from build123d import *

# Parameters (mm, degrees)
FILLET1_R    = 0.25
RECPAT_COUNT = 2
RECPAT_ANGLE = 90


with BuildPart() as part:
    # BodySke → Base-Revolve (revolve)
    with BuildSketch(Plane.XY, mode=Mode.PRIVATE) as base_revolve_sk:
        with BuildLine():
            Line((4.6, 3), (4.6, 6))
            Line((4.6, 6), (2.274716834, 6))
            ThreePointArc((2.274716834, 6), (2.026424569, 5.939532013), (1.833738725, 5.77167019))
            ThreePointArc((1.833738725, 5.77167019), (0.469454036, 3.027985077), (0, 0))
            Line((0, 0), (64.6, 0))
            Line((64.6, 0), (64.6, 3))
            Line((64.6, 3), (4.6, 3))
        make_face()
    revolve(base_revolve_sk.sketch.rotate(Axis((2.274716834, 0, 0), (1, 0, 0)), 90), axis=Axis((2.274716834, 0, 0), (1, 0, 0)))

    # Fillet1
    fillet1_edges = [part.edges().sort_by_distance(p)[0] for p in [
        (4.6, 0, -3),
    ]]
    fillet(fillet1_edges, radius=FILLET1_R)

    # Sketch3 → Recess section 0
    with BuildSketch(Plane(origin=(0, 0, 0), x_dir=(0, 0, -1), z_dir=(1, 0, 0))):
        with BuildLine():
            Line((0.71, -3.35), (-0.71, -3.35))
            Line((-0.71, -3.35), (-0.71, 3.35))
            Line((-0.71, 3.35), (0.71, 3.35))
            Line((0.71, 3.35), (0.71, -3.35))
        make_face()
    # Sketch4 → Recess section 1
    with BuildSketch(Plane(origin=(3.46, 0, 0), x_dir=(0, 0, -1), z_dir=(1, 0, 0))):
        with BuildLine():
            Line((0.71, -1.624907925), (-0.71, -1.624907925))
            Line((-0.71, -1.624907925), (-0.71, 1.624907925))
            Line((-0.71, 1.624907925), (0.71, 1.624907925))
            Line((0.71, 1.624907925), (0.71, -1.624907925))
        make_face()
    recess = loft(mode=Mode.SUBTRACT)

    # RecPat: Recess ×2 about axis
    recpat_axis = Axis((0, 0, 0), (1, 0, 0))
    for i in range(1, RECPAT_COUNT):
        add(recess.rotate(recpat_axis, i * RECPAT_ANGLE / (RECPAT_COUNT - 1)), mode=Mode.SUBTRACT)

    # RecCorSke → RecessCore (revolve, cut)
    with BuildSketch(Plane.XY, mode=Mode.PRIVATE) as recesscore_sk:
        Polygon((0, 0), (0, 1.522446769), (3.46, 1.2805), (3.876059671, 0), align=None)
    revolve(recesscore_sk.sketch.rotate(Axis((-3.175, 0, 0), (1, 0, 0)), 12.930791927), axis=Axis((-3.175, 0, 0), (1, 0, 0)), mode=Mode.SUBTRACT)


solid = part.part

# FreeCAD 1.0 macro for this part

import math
import FreeCAD as App
import Part
import Sketcher
from FreeCAD import Vector
Q = App.Units.Quantity


def edges_at(feature, points):
    """Names of the edges that pass closest to the given points."""
    edges = feature.Shape.Edges
    near = lambda p: min(range(len(edges)), key=lambda i: edges[i].distToShape(Part.Vertex(*p))[0])
    return sorted({f"Edge{near(p) + 1}" for p in points})


def add_polygon(sketch, points):
    """Adds a closed chain of lines whose ends are joined by coincident constraints."""
    first, n = sketch.GeometryCount, len(points)
    for a, b in zip(points, points[1:] + points[:1]):
        sketch.addGeometry(Part.LineSegment(App.Vector(*a, 0), App.Vector(*b, 0)), False)
    for i in range(n):
        sketch.addConstraint(Sketcher.Constraint("Coincident", first + i, 2, first + (i + 1) % n, 1))

doc = App.newDocument("Part")
params = doc.addObject("Spreadsheet::Sheet", "Params")
for row, (alias, value) in enumerate([
    ("sketch1_radius", "10 mm"),
    ("sketch1_width", "60 mm"),
    ("sketch1_height", "3 mm"),
    ("sketch1_radius2", "0.54 mm"),
    ("sketch1_width2", "64.6 mm"),
    ("revolution_angle", "360 deg"),
    ("fillet_radius", "0.25 mm"),
    ("sketch2_width", "6.7 mm"),
    ("sketch2_height", "1.42 mm"),
    ("sketch3_height", "1.42 mm"),
    ("groove_angle", "360 deg"),
], start=1):
    params.set(f"A{row}", alias)
    params.set(f"B{row}", "=" + value)
    params.setAlias(f"B{row}", alias)

body = doc.addObject("PartDesign::Body", "Body")

# Sketch on XY plane
sketch1 = doc.addObject("Sketcher::SketchObject", "Sketch")
body.addObject(sketch1)
sketch1.AttachmentSupport = (doc.XY_Plane, [""])
sketch1.MapMode = "FlatFace"
sketch1.addGeometry([
    Part.LineSegment(Vector(4.6, 3, 0), Vector(4.6, 6, 0)),  # 0
    Part.LineSegment(Vector(4.6, 6, 0), Vector(2.27, 6, 0)),  # 1
    Part.ArcOfCircle(Part.Circle(Vector(2.27, 5.46, 0), Vector(0, 0, 1), 0.54), math.radians(90), math.radians(145)),  # 2
    Part.ArcOfCircle(Part.Circle(Vector(10, 0, 0), Vector(0, 0, 1), 10), math.radians(145), math.radians(180)),  # 3
    Part.LineSegment(Vector(0, 0, 0), Vector(64.6, 0, 0)),  # 4
    Part.LineSegment(Vector(64.6, 0, 0), Vector(64.6, 3, 0)),  # 5
    Part.LineSegment(Vector(64.6, 3, 0), Vector(4.6, 3, 0)),  # 6
], False)
sketch1.addConstraint([
    Sketcher.Constraint("Coincident", 0, 2, 1, 1),
    Sketcher.Constraint("Tangent", 1, 2, 2, 1),
    Sketcher.Constraint("Tangent", 2, 2, 3, 1),
    Sketcher.Constraint("Coincident", 3, 2, 4, 1),
    Sketcher.Constraint("Coincident", 4, 2, 5, 1),
    Sketcher.Constraint("Coincident", 5, 2, 6, 1),
    Sketcher.Constraint("Coincident", 6, 2, 0, 1),
    Sketcher.Constraint("Vertical", 0),
    Sketcher.Constraint("Horizontal", 1),
    Sketcher.Constraint("Horizontal", 4),
    Sketcher.Constraint("Vertical", 5),
    Sketcher.Constraint("Horizontal", 6),
    Sketcher.Constraint("Coincident", 3, 2, -1, 1),
    Sketcher.Constraint("PointOnObject", 3, 3, -1),
    Sketcher.Constraint("Equal", 0, 5),
    Sketcher.Constraint("Radius", 3, 10.0),
    Sketcher.Constraint("DistanceX", 6, 2, 6, 1, 60.0),
    Sketcher.Constraint("DistanceY", 0, 1, 0, 2, 3.0),
    Sketcher.Constraint("Radius", 2, 0.54),
    Sketcher.Constraint("DistanceX", 4, 1, 4, 2, 64.6),
])
sketch1.setExpression("Constraints[15]", "Params.sketch1_radius")
sketch1.setExpression("Constraints[16]", "Params.sketch1_width")
sketch1.setExpression("Constraints[17]", "Params.sketch1_height")
sketch1.setExpression("Constraints[18]", "Params.sketch1_radius2")
sketch1.setExpression("Constraints[19]", "Params.sketch1_width2")
revolution = doc.addObject("PartDesign::Revolution", "Revolution")
body.addObject(revolution)
revolution.Profile = sketch1
revolution.ReferenceAxis = (sketch1, ["H_Axis"])
revolution.setExpression("Angle", "Params.revolution_angle")
doc.recompute()

fillet = doc.addObject("PartDesign::Fillet", "Fillet")
body.addObject(fillet)
fillet.Base = (revolution, edges_at(revolution, [(4.6, 0, -3)]))
fillet.setExpression("Radius", "Params.fillet_radius")

# Sketch on YZ plane
sketch2 = doc.addObject("Sketcher::SketchObject", "Sketch001")
body.addObject(sketch2)
sketch2.AttachmentSupport = (doc.YZ_Plane, [""])
sketch2.MapMode = "FlatFace"
add_polygon(sketch2, [(-3.4, 0.7), (-3.4, -0.7), (3.4, -0.7), (3.4, 0.7)])  # lines 0-3
sketch2.addConstraint([
    Sketcher.Constraint("Vertical", 0),
    Sketcher.Constraint("Horizontal", 1),
    Sketcher.Constraint("Vertical", 2),
    Sketcher.Constraint("Horizontal", 3),
    Sketcher.Constraint("Symmetric", 0, 2, 2, 2, -1, 1),
    Sketcher.Constraint("DistanceX", 1, 1, 1, 2, 6.7),
    Sketcher.Constraint("DistanceY", 0, 2, 0, 1, 1.42),
])
sketch2.setExpression("Constraints[9]", "Params.sketch2_width")
sketch2.setExpression("Constraints[10]", "Params.sketch2_height")

# Sketch on YZ plane
sketch3 = doc.addObject("Sketcher::SketchObject", "Sketch002")
body.addObject(sketch3)
sketch3.AttachmentSupport = (doc.YZ_Plane, [""])
sketch3.MapMode = "FlatFace"
sketch3.AttachmentOffset = App.Placement(Vector(0, 0, 3.46), App.Rotation())
add_polygon(sketch3, [(-1.6, 0.7), (-1.6, -0.7), (1.6, -0.7), (1.6, 0.7)])  # lines 0-3
sketch3.addConstraint([
    Sketcher.Constraint("Vertical", 0),
    Sketcher.Constraint("Horizontal", 1),
    Sketcher.Constraint("Vertical", 2),
    Sketcher.Constraint("Horizontal", 3),
    Sketcher.Constraint("Symmetric", 0, 2, 2, 2, -1, 1),
    Sketcher.Constraint("DistanceY", 0, 2, 0, 1, 1.42),
    Sketcher.Constraint("DistanceX", 1, 1, 1, 2, 3.249816),
])
sketch3.setExpression("Constraints[9]", "Params.sketch3_height")

subtractiveloft = doc.addObject("PartDesign::SubtractiveLoft", "SubtractiveLoft")
body.addObject(subtractiveloft)
subtractiveloft.Profile = sketch2
subtractiveloft.Sections = [sketch3]
doc.recompute()

polarpattern = doc.addObject("PartDesign::PolarPattern", "PolarPattern")
body.addObject(polarpattern)
polarpattern.Originals = [subtractiveloft]
polarpattern.Axis = (doc.X_Axis, [""])
polarpattern.Angle = 90
polarpattern.Occurrences = 2
body.Tip = polarpattern

# Sketch on XY plane
sketch4 = doc.addObject("Sketcher::SketchObject", "Sketch003")
body.addObject(sketch4)
sketch4.AttachmentSupport = (doc.XY_Plane, [""])
sketch4.MapMode = "FlatFace"
add_polygon(sketch4, [(0, 1.5), (0, 0), (3.9, 0), (3.5, 1.3)])  # lines 0-3
sketch4.addConstraint([
    Sketcher.Constraint("Vertical", 0),
    Sketcher.Constraint("Horizontal", 1),
    Sketcher.Constraint("Coincident", 0, 2, -1, 1),
    Sketcher.Constraint("Angle", 2, Q("108 deg")),
    Sketcher.Constraint("Angle", 3, Q("176 deg")),
    Sketcher.Constraint("DistanceX", -1, 1, 2, 2, 3.46),
    Sketcher.Constraint("DistanceX", 1, 1, 1, 2, 3.87606),
])
groove = doc.addObject("PartDesign::Groove", "Groove")
body.addObject(groove)
groove.Profile = sketch4
groove.ReferenceAxis = (sketch4, ["H_Axis"])
groove.setExpression("Angle", "Params.groove_angle")

doc.recompute()
